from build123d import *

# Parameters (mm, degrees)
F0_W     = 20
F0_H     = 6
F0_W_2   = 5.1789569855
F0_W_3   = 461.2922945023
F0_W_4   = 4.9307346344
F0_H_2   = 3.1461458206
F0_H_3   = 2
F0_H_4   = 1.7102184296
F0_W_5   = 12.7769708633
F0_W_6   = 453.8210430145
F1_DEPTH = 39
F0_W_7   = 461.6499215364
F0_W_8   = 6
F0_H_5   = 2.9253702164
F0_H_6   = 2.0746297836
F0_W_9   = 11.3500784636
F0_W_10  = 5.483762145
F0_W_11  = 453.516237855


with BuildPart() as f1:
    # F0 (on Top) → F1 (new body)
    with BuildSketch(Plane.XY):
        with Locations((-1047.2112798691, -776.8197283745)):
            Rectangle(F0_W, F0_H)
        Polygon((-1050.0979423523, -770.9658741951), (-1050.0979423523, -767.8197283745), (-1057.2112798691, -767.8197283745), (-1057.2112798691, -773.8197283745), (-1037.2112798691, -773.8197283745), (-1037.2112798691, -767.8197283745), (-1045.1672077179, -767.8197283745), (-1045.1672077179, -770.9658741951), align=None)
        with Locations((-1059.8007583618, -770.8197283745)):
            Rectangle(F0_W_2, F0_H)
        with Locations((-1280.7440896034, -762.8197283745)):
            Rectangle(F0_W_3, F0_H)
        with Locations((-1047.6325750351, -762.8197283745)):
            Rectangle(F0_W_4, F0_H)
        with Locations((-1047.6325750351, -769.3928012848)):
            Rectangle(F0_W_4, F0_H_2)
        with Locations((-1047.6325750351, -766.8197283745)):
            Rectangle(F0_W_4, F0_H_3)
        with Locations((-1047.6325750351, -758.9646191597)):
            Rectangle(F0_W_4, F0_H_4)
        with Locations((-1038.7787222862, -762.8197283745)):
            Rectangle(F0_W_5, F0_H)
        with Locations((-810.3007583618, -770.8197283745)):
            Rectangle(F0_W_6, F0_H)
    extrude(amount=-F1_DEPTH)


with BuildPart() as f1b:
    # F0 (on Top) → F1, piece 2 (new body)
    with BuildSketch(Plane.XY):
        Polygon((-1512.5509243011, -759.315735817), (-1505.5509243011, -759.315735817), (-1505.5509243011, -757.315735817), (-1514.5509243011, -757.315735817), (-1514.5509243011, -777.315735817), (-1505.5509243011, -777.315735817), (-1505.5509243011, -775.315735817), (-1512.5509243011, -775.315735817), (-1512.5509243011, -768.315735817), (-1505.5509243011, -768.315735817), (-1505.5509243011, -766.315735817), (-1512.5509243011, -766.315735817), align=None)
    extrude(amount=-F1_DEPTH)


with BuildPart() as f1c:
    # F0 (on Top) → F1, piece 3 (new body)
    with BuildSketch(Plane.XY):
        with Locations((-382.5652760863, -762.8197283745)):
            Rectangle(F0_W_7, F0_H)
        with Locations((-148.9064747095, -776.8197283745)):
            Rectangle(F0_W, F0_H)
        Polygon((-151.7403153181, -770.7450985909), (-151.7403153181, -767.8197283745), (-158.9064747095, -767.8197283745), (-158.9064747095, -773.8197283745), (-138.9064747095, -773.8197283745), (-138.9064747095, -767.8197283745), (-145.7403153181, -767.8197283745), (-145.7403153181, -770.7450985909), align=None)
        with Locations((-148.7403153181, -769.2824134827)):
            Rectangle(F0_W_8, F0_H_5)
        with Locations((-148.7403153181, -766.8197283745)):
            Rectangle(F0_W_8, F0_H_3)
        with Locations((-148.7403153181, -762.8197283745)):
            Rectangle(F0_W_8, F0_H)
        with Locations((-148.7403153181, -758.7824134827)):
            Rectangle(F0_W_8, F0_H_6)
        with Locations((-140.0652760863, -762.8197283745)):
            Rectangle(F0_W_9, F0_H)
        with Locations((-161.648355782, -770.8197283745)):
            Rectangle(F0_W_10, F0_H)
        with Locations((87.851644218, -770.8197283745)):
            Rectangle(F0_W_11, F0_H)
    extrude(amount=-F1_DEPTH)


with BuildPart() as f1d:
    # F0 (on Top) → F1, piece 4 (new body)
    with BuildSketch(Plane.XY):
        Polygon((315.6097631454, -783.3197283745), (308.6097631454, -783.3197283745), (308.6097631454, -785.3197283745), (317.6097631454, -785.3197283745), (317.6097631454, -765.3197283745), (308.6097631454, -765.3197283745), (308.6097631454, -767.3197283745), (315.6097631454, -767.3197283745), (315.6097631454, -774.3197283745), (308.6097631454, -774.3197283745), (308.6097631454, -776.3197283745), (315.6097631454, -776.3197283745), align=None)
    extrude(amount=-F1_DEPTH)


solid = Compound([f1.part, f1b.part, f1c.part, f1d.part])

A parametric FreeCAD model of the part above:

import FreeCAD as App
import Part
import Sketcher
from FreeCAD import Vector

doc = App.newDocument("Part")
body = doc.addObject("PartDesign::Body", "Body")

sketch1 = body.newObject("Sketcher::SketchObject", "Sketch")
sketch1.AttachmentSupport = (doc.getObject("XY_Plane"), [""])
sketch1.MapMode = "FlatFace"
sketch1.addGeometry([
    Part.LineSegment(Vector(-1057.21128, -779.819728, 0), Vector(-1037.21128, -779.819728, 0)),
    Part.LineSegment(Vector(-1037.21128, -779.819728, 0), Vector(-1037.21128, -773.819728, 0)),
    Part.LineSegment(Vector(-1037.21128, -773.819728, 0), Vector(-583.390237, -773.819728, 0)),
    Part.LineSegment(Vector(-583.390237, -773.819728, 0), Vector(-583.390237, -767.819728, 0)),
    Part.LineSegment(Vector(-583.390237, -767.819728, 0), Vector(-1045.167208, -767.819728, 0)),
    Part.LineSegment(Vector(-1045.167208, -767.819728, 0), Vector(-1045.167208, -765.819728, 0)),
    Part.LineSegment(Vector(-1045.167208, -765.819728, 0), Vector(-1032.390237, -765.819728, 0)),
    Part.LineSegment(Vector(-1032.390237, -765.819728, 0), Vector(-1032.390237, -759.819728, 0)),
    Part.LineSegment(Vector(-1032.390237, -759.819728, 0), Vector(-1045.167208, -759.819728, 0)),
    Part.LineSegment(Vector(-1045.167208, -759.819728, 0), Vector(-1045.167208, -758.10951, 0)),
    Part.LineSegment(Vector(-1045.167208, -758.10951, 0), Vector(-1050.097942, -758.10951, 0)),
    Part.LineSegment(Vector(-1050.097942, -758.10951, 0), Vector(-1050.097942, -759.819728, 0)),
    Part.LineSegment(Vector(-1050.097942, -759.819728, 0), Vector(-1511.390237, -759.819728, 0)),
    Part.LineSegment(Vector(-1511.390237, -759.819728, 0), Vector(-1511.390237, -765.819728, 0)),
    Part.LineSegment(Vector(-1511.390237, -765.819728, 0), Vector(-1050.097942, -765.819728, 0)),
    Part.LineSegment(Vector(-1050.097942, -765.819728, 0), Vector(-1050.097942, -767.819728, 0)),
    Part.LineSegment(Vector(-1050.097942, -767.819728, 0), Vector(-1062.390237, -767.819728, 0)),
    Part.LineSegment(Vector(-1062.390237, -767.819728, 0), Vector(-1062.390237, -773.819728, 0)),
    Part.LineSegment(Vector(-1062.390237, -773.819728, 0), Vector(-1057.21128, -773.819728, 0)),
    Part.LineSegment(Vector(-1057.21128, -773.819728, 0), Vector(-1057.21128, -779.819728, 0)),
], False)
sketch1.addConstraint([
    Sketcher.Constraint("Coincident", 0, 2, 1, 1),
    Sketcher.Constraint("Coincident", 1, 2, 2, 1),
    Sketcher.Constraint("Coincident", 2, 2, 3, 1),
    Sketcher.Constraint("Coincident", 3, 2, 4, 1),
    Sketcher.Constraint("Coincident", 4, 2, 5, 1),
    Sketcher.Constraint("Coincident", 5, 2, 6, 1),
    Sketcher.Constraint("Coincident", 6, 2, 7, 1),
    Sketcher.Constraint("Coincident", 7, 2, 8, 1),
    Sketcher.Constraint("Coincident", 8, 2, 9, 1),
    Sketcher.Constraint("Coincident", 9, 2, 10, 1),
    Sketcher.Constraint("Coincident", 10, 2, 11, 1),
    Sketcher.Constraint("Coincident", 11, 2, 12, 1),
    Sketcher.Constraint("Coincident", 12, 2, 13, 1),
    Sketcher.Constraint("Coincident", 13, 2, 14, 1),
    Sketcher.Constraint("Coincident", 14, 2, 15, 1),
    Sketcher.Constraint("Coincident", 15, 2, 16, 1),
    Sketcher.Constraint("Coincident", 16, 2, 17, 1),
    Sketcher.Constraint("Coincident", 17, 2, 18, 1),
    Sketcher.Constraint("Coincident", 18, 2, 19, 1),
    Sketcher.Constraint("Coincident", 19, 2, 0, 1),
    Sketcher.Constraint("Horizontal", 0),
    Sketcher.Constraint("Vertical", 1),
    Sketcher.Constraint("Horizontal", 2),
    Sketcher.Constraint("Vertical", 3),
    Sketcher.Constraint("Horizontal", 4),
    Sketcher.Constraint("Vertical", 5),
    Sketcher.Constraint("Horizontal", 6),
    Sketcher.Constraint("Vertical", 7),
    Sketcher.Constraint("Horizontal", 8),
    Sketcher.Constraint("Vertical", 9),
    Sketcher.Constraint("Horizontal", 10),
    Sketcher.Constraint("Vertical", 11),
    Sketcher.Constraint("Horizontal", 12),
    Sketcher.Constraint("Vertical", 13),
    Sketcher.Constraint("Horizontal", 14),
    Sketcher.Constraint("Vertical", 15),
    Sketcher.Constraint("Horizontal", 16),
    Sketcher.Constraint("Vertical", 17),
    Sketcher.Constraint("Horizontal", 18),
    Sketcher.Constraint("Vertical", 19),
    Sketcher.Constraint("Horizontal", 8, 2, 11, 2),
    Sketcher.Constraint("Horizontal", 6, 2, 13, 2),
    Sketcher.Constraint("Horizontal", 4, 2, 15, 2),
    Sketcher.Constraint("Horizontal", 2, 2, 17, 2),
    Sketcher.Constraint("Vertical", 5, 2, 8, 2),
    Sketcher.Constraint("Vertical", 11, 2, 14, 2),
    Sketcher.Constraint("Equal", 1, 3),
    Sketcher.Constraint("Equal", 3, 7),
    Sketcher.Constraint("DistanceX", 0, 1, 0, 2, 20.0),
    Sketcher.Constraint("DistanceY", 1, 1, 1, 2, 6.0),
    Sketcher.Constraint("DistanceY", 5, 1, 5, 2, 2.0),
    Sketcher.Constraint("DistanceX", 6, 2, 3, 2, 449.0),
    Sketcher.Constraint("DistanceX", 4, 2, 4, 1, 461.776971),
    Sketcher.Constraint("DistanceY", 9, 1, 9, 2, 1.710218),
    Sketcher.Constraint("DistanceX", 2, 1, 2, 2, 453.821043),
    Sketcher.Constraint("DistanceX", 10, 2, 10, 1, 4.930735),
    Sketcher.Constraint("DistanceX", 12, 2, 12, 1, 461.292295),
    Sketcher.Constraint("DistanceX", 16, 2, 16, 1, 12.292295),
    Sketcher.Constraint("DistanceX", 0, 2, -1, 1, 1037.21128),
    Sketcher.Constraint("DistanceY", 0, 2, -1, 1, 779.819728),
])
pad1 = body.newObject("PartDesign::Pad", "Pad")
pad1.Profile = sketch1
pad1.Length = 39
pad1.Reversed = True
body2 = doc.addObject("PartDesign::Body", "Body001")

sketch2 = body2.newObject("Sketcher::SketchObject", "Sketch001")
sketch2.AttachmentSupport = (doc.getObject("XY_Plane001"), [""])
sketch2.MapMode = "FlatFace"
sketch2.addGeometry([
    Part.LineSegment(Vector(-1512.550924, -759.315736, 0), Vector(-1505.550924, -759.315736, 0)),
    Part.LineSegment(Vector(-1505.550924, -759.315736, 0), Vector(-1505.550924, -757.315736, 0)),
    Part.LineSegment(Vector(-1505.550924, -757.315736, 0), Vector(-1514.550924, -757.315736, 0)),
    Part.LineSegment(Vector(-1514.550924, -757.315736, 0), Vector(-1514.550924, -777.315736, 0)),
    Part.LineSegment(Vector(-1514.550924, -777.315736, 0), Vector(-1505.550924, -777.315736, 0)),
    Part.LineSegment(Vector(-1505.550924, -777.315736, 0), Vector(-1505.550924, -775.315736, 0)),
    Part.LineSegment(Vector(-1505.550924, -775.315736, 0), Vector(-1512.550924, -775.315736, 0)),
    Part.LineSegment(Vector(-1512.550924, -775.315736, 0), Vector(-1512.550924, -768.315736, 0)),
    Part.LineSegment(Vector(-1512.550924, -768.315736, 0), Vector(-1505.550924, -768.315736, 0)),
    Part.LineSegment(Vector(-1505.550924, -768.315736, 0), Vector(-1505.550924, -766.315736, 0)),
    Part.LineSegment(Vector(-1505.550924, -766.315736, 0), Vector(-1512.550924, -766.315736, 0)),
    Part.LineSegment(Vector(-1512.550924, -766.315736, 0), Vector(-1512.550924, -759.315736, 0)),
], False)
sketch2.addConstraint([
    Sketcher.Constraint("Coincident", 0, 2, 1, 1),
    Sketcher.Constraint("Coincident", 1, 2, 2, 1),
    Sketcher.Constraint("Coincident", 2, 2, 3, 1),
    Sketcher.Constraint("Coincident", 3, 2, 4, 1),
    Sketcher.Constraint("Coincident", 4, 2, 5, 1),
    Sketcher.Constraint("Coincident", 5, 2, 6, 1),
    Sketcher.Constraint("Coincident", 6, 2, 7, 1),
    Sketcher.Constraint("Coincident", 7, 2, 8, 1),
    Sketcher.Constraint("Coincident", 8, 2, 9, 1),
    Sketcher.Constraint("Coincident", 9, 2, 10, 1),
    Sketcher.Constraint("Coincident", 10, 2, 11, 1),
    Sketcher.Constraint("Coincident", 11, 2, 0, 1),
    Sketcher.Constraint("Horizontal", 0),
    Sketcher.Constraint("Vertical", 1),
    Sketcher.Constraint("Horizontal", 2),
    Sketcher.Constraint("Vertical", 3),
    Sketcher.Constraint("Horizontal", 4),
    Sketcher.Constraint("Vertical", 5),
    Sketcher.Constraint("Horizontal", 6),
    Sketcher.Constraint("Vertical", 7),
    Sketcher.Constraint("Horizontal", 8),
    Sketcher.Constraint("Vertical", 9),
    Sketcher.Constraint("Horizontal", 10),
    Sketcher.Constraint("Vertical", 11),
    Sketcher.Constraint("Vertical", 1, 2, 4, 2),
    Sketcher.Constraint("Vertical", 5, 2, 8, 2),
    Sketcher.Constraint("Vertical", 7, 2, 10, 2),
    Sketcher.Constraint("Equal", 1, 5),
    Sketcher.Constraint("Equal", 10, 7),
    Sketcher.Constraint("Equal", 5, 9),
    Sketcher.Constraint("Equal", 7, 11),
    Sketcher.Constraint("DistanceX", 0, 1, 0, 2, 7.0),
    Sketcher.Constraint("DistanceX", 2, 2, 2, 1, 9.0),
    Sketcher.Constraint("DistanceY", 1, 1, 1, 2, 2.0),
    Sketcher.Constraint("DistanceX", 0, 2, -1, 1, 1505.550924),
    Sketcher.Constraint("DistanceY", 0, 2, -1, 1, 759.315736),
])
pad2 = body2.newObject("PartDesign::Pad", "Pad001")
pad2.Profile = sketch2
pad2.Length = 39
pad2.Reversed = True
body3 = doc.addObject("PartDesign::Body", "Body002")

sketch3 = body3.newObject("Sketcher::SketchObject", "Sketch002")
sketch3.AttachmentSupport = (doc.getObject("XY_Plane002"), [""])
sketch3.MapMode = "FlatFace"
sketch3.addGeometry([
    Part.LineSegment(Vector(-613.390237, -759.819728, 0), Vector(-613.390237, -765.819728, 0)),
    Part.LineSegment(Vector(-613.390237, -765.819728, 0), Vector(-151.740315, -765.819728, 0)),
    Part.LineSegment(Vector(-151.740315, -765.819728, 0), Vector(-151.740315, -767.819728, 0)),
    Part.LineSegment(Vector(-151.740315, -767.819728, 0), Vector(-164.390237, -767.819728, 0)),
    Part.LineSegment(Vector(-164.390237, -767.819728, 0), Vector(-164.390237, -773.819728, 0)),
    Part.LineSegment(Vector(-164.390237, -773.819728, 0), Vector(-158.906475, -773.819728, 0)),
    Part.LineSegment(Vector(-158.906475, -773.819728, 0), Vector(-158.906475, -779.819728, 0)),
    Part.LineSegment(Vector(-158.906475, -779.819728, 0), Vector(-138.906475, -779.819728, 0)),
    Part.LineSegment(Vector(-138.906475, -779.819728, 0), Vector(-138.906475, -773.819728, 0)),
    Part.LineSegment(Vector(-138.906475, -773.819728, 0), Vector(314.609763, -773.819728, 0)),
    Part.LineSegment(Vector(314.609763, -773.819728, 0), Vector(314.609763, -767.819728, 0)),
    Part.LineSegment(Vector(314.609763, -767.819728, 0), Vector(-145.740315, -767.819728, 0)),
    Part.LineSegment(Vector(-145.740315, -767.819728, 0), Vector(-145.740315, -765.819728, 0)),
    Part.LineSegment(Vector(-145.740315, -765.819728, 0), Vector(-134.390237, -765.819728, 0)),
    Part.LineSegment(Vector(-134.390237, -765.819728, 0), Vector(-134.390237, -759.819728, 0)),
    Part.LineSegment(Vector(-134.390237, -759.819728, 0), Vector(-145.740315, -759.819728, 0)),
    Part.LineSegment(Vector(-145.740315, -759.819728, 0), Vector(-145.740315, -757.745099, 0)),
    Part.LineSegment(Vector(-145.740315, -757.745099, 0), Vector(-151.740315, -757.745099, 0)),
    Part.LineSegment(Vector(-151.740315, -757.745099, 0), Vector(-151.740315, -759.819728, 0)),
    Part.LineSegment(Vector(-151.740315, -759.819728, 0), Vector(-613.390237, -759.819728, 0)),
], False)
sketch3.addConstraint([
    Sketcher.Constraint("Coincident", 0, 2, 1, 1),
    Sketcher.Constraint("Coincident", 1, 2, 2, 1),
    Sketcher.Constraint("Coincident", 2, 2, 3, 1),
    Sketcher.Constraint("Coincident", 3, 2, 4, 1),
    Sketcher.Constraint("Coincident", 4, 2, 5, 1),
    Sketcher.Constraint("Coincident", 5, 2, 6, 1),
    Sketcher.Constraint("Coincident", 6, 2, 7, 1),
    Sketcher.Constraint("Coincident", 7, 2, 8, 1),
    Sketcher.Constraint("Coincident", 8, 2, 9, 1),
    Sketcher.Constraint("Coincident", 9, 2, 10, 1),
    Sketcher.Constraint("Coincident", 10, 2, 11, 1),
    Sketcher.Constraint("Coincident", 11, 2, 12, 1),
    Sketcher.Constraint("Coincident", 12, 2, 13, 1),
    Sketcher.Constraint("Coincident", 13, 2, 14, 1),
    Sketcher.Constraint("Coincident", 14, 2, 15, 1),
    Sketcher.Constraint("Coincident", 15, 2, 16, 1),
    Sketcher.Constraint("Coincident", 16, 2, 17, 1),
    Sketcher.Constraint("Coincident", 17, 2, 18, 1),
    Sketcher.Constraint("Coincident", 18, 2, 19, 1),
    Sketcher.Constraint("Coincident", 19, 2, 0, 1),
    Sketcher.Constraint("Vertical", 0),
    Sketcher.Constraint("Horizontal", 1),
    Sketcher.Constraint("Vertical", 2),
    Sketcher.Constraint("Horizontal", 3),
    Sketcher.Constraint("Vertical", 4),
    Sketcher.Constraint("Horizontal", 5),
    Sketcher.Constraint("Vertical", 6),
    Sketcher.Constraint("Horizontal", 7),
    Sketcher.Constraint("Vertical", 8),
    Sketcher.Constraint("Horizontal", 9),
    Sketcher.Constraint("Vertical", 10),
    Sketcher.Constraint("Horizontal", 11),
    Sketcher.Constraint("Vertical", 12),
    Sketcher.Constraint("Horizontal", 13),
    Sketcher.Constraint("Vertical", 14),
    Sketcher.Constraint("Horizontal", 15),
    Sketcher.Constraint("Vertical", 16),
    Sketcher.Constraint("Horizontal", 17),
    Sketcher.Constraint("Vertical", 18),
    Sketcher.Constraint("Horizontal", 19),
    Sketcher.Constraint("Horizontal", 5, 2, 8, 2),
    Sketcher.Constraint("Horizontal", 3, 2, 10, 2),
    Sketcher.Constraint("Horizontal", 1, 2, 12, 2),
    Sketcher.Constraint("Horizontal", 15, 2, 18, 2),
    Sketcher.Constraint("Vertical", 12, 2, 15, 2),
    Sketcher.Constraint("Vertical", 2, 2, 17, 2),
    Sketcher.Constraint("Equal", 17, 0),
    Sketcher.Constraint("Equal", 0, 4),
    Sketcher.Constraint("Equal", 4, 6),
    Sketcher.Constraint("DistanceX", 7, 1, 7, 2, 20.0),
    Sketcher.Constraint("DistanceX", 17, 2, 17, 1, 6.0),
    Sketcher.Constraint("DistanceY", 2, 2, 2, 1, 2.0),
    Sketcher.Constraint("DistanceX", 0, 2, 3, 2, 449.0),
    Sketcher.Constraint("DistanceX", 1, 1, 1, 2, 461.649922),
    Sketcher.Constraint("DistanceX", 11, 2, 11, 1, 460.350078),
    Sketcher.Constraint("DistanceX", 13, 1, 13, 2, 11.350078),
    Sketcher.Constraint("DistanceY", 16, 1, 16, 2, 2.07463),
    Sketcher.Constraint("DistanceY", 16, 2, -1, 1, 757.745099),
    Sketcher.Constraint("DistanceX", 5, 1, 5, 2, 5.483762),
    Sketcher.Constraint("DistanceX", 0, 2, -1, 1, 613.390237),
])
pad3 = body3.newObject("PartDesign::Pad", "Pad002")
pad3.Profile = sketch3
pad3.Length = 39
pad3.Reversed = True
body4 = doc.addObject("PartDesign::Body", "Body003")

sketch4 = body4.newObject("Sketcher::SketchObject", "Sketch003")
sketch4.AttachmentSupport = (doc.getObject("XY_Plane003"), [""])
sketch4.MapMode = "FlatFace"
sketch4.addGeometry([
    Part.LineSegment(Vector(315.609763, -783.319728, 0), Vector(308.609763, -783.319728, 0)),
    Part.LineSegment(Vector(308.609763, -783.319728, 0), Vector(308.609763, -785.319728, 0)),
    Part.LineSegment(Vector(308.609763, -785.319728, 0), Vector(317.609763, -785.319728, 0)),
    Part.LineSegment(Vector(317.609763, -785.319728, 0), Vector(317.609763, -765.319728, 0)),
    Part.LineSegment(Vector(317.609763, -765.319728, 0), Vector(308.609763, -765.319728, 0)),
    Part.LineSegment(Vector(308.609763, -765.319728, 0), Vector(308.609763, -767.319728, 0)),
    Part.LineSegment(Vector(308.609763, -767.319728, 0), Vector(315.609763, -767.319728, 0)),
    Part.LineSegment(Vector(315.609763, -767.319728, 0), Vector(315.609763, -774.319728, 0)),
    Part.LineSegment(Vector(315.609763, -774.319728, 0), Vector(308.609763, -774.319728, 0)),
    Part.LineSegment(Vector(308.609763, -774.319728, 0), Vector(308.609763, -776.319728, 0)),
    Part.LineSegment(Vector(308.609763, -776.319728, 0), Vector(315.609763, -776.319728, 0)),
    Part.LineSegment(Vector(315.609763, -776.319728, 0), Vector(315.609763, -783.319728, 0)),
], False)
sketch4.addConstraint([
    Sketcher.Constraint("Coincident", 0, 2, 1, 1),
    Sketcher.Constraint("Coincident", 1, 2, 2, 1),
    Sketcher.Constraint("Coincident", 2, 2, 3, 1),
    Sketcher.Constraint("Coincident", 3, 2, 4, 1),
    Sketcher.Constraint("Coincident", 4, 2, 5, 1),
    Sketcher.Constraint("Coincident", 5, 2, 6, 1),
    Sketcher.Constraint("Coincident", 6, 2, 7, 1),
    Sketcher.Constraint("Coincident", 7, 2, 8, 1),
    Sketcher.Constraint("Coincident", 8, 2, 9, 1),
    Sketcher.Constraint("Coincident", 9, 2, 10, 1),
    Sketcher.Constraint("Coincident", 10, 2, 11, 1),
    Sketcher.Constraint("Coincident", 11, 2, 0, 1),
    Sketcher.Constraint("Horizontal", 0),
    Sketcher.Constraint("Vertical", 1),
    Sketcher.Constraint("Horizontal", 2),
    Sketcher.Constraint("Vertical", 3),
    Sketcher.Constraint("Horizontal", 4),
    Sketcher.Constraint("Vertical", 5),
    Sketcher.Constraint("Horizontal", 6),
    Sketcher.Constraint("Vertical", 7),
    Sketcher.Constraint("Horizontal", 8),
    Sketcher.Constraint("Vertical", 9),
    Sketcher.Constraint("Horizontal", 10),
    Sketcher.Constraint("Vertical", 11),
    Sketcher.Constraint("Vertical", 1, 2, 4, 2),
    Sketcher.Constraint("Vertical", 5, 2, 8, 2),
    Sketcher.Constraint("Vertical", 7, 2, 10, 2),
    Sketcher.Constraint("Equal", 1, 5),
    Sketcher.Constraint("Equal", 10, 7),
    Sketcher.Constraint("Equal", 5, 9),
    Sketcher.Constraint("Equal", 7, 11),
    Sketcher.Constraint("DistanceX", 0, 2, 0, 1, 7.0),
    Sketcher.Constraint("DistanceX", 2, 1, 2, 2, 9.0),
    Sketcher.Constraint("DistanceY", 1, 2, 1, 1, 2.0),
    Sketcher.Constraint("DistanceY", 0, 2, -1, 1, 783.319728),
    Sketcher.Constraint("DistanceX", -1, 1, 0, 2, 308.609763),
])
pad4 = body4.newObject("PartDesign::Pad", "Pad003")
pad4.Profile = sketch4
pad4.Length = 39
pad4.Reversed = True

doc.recompute()
